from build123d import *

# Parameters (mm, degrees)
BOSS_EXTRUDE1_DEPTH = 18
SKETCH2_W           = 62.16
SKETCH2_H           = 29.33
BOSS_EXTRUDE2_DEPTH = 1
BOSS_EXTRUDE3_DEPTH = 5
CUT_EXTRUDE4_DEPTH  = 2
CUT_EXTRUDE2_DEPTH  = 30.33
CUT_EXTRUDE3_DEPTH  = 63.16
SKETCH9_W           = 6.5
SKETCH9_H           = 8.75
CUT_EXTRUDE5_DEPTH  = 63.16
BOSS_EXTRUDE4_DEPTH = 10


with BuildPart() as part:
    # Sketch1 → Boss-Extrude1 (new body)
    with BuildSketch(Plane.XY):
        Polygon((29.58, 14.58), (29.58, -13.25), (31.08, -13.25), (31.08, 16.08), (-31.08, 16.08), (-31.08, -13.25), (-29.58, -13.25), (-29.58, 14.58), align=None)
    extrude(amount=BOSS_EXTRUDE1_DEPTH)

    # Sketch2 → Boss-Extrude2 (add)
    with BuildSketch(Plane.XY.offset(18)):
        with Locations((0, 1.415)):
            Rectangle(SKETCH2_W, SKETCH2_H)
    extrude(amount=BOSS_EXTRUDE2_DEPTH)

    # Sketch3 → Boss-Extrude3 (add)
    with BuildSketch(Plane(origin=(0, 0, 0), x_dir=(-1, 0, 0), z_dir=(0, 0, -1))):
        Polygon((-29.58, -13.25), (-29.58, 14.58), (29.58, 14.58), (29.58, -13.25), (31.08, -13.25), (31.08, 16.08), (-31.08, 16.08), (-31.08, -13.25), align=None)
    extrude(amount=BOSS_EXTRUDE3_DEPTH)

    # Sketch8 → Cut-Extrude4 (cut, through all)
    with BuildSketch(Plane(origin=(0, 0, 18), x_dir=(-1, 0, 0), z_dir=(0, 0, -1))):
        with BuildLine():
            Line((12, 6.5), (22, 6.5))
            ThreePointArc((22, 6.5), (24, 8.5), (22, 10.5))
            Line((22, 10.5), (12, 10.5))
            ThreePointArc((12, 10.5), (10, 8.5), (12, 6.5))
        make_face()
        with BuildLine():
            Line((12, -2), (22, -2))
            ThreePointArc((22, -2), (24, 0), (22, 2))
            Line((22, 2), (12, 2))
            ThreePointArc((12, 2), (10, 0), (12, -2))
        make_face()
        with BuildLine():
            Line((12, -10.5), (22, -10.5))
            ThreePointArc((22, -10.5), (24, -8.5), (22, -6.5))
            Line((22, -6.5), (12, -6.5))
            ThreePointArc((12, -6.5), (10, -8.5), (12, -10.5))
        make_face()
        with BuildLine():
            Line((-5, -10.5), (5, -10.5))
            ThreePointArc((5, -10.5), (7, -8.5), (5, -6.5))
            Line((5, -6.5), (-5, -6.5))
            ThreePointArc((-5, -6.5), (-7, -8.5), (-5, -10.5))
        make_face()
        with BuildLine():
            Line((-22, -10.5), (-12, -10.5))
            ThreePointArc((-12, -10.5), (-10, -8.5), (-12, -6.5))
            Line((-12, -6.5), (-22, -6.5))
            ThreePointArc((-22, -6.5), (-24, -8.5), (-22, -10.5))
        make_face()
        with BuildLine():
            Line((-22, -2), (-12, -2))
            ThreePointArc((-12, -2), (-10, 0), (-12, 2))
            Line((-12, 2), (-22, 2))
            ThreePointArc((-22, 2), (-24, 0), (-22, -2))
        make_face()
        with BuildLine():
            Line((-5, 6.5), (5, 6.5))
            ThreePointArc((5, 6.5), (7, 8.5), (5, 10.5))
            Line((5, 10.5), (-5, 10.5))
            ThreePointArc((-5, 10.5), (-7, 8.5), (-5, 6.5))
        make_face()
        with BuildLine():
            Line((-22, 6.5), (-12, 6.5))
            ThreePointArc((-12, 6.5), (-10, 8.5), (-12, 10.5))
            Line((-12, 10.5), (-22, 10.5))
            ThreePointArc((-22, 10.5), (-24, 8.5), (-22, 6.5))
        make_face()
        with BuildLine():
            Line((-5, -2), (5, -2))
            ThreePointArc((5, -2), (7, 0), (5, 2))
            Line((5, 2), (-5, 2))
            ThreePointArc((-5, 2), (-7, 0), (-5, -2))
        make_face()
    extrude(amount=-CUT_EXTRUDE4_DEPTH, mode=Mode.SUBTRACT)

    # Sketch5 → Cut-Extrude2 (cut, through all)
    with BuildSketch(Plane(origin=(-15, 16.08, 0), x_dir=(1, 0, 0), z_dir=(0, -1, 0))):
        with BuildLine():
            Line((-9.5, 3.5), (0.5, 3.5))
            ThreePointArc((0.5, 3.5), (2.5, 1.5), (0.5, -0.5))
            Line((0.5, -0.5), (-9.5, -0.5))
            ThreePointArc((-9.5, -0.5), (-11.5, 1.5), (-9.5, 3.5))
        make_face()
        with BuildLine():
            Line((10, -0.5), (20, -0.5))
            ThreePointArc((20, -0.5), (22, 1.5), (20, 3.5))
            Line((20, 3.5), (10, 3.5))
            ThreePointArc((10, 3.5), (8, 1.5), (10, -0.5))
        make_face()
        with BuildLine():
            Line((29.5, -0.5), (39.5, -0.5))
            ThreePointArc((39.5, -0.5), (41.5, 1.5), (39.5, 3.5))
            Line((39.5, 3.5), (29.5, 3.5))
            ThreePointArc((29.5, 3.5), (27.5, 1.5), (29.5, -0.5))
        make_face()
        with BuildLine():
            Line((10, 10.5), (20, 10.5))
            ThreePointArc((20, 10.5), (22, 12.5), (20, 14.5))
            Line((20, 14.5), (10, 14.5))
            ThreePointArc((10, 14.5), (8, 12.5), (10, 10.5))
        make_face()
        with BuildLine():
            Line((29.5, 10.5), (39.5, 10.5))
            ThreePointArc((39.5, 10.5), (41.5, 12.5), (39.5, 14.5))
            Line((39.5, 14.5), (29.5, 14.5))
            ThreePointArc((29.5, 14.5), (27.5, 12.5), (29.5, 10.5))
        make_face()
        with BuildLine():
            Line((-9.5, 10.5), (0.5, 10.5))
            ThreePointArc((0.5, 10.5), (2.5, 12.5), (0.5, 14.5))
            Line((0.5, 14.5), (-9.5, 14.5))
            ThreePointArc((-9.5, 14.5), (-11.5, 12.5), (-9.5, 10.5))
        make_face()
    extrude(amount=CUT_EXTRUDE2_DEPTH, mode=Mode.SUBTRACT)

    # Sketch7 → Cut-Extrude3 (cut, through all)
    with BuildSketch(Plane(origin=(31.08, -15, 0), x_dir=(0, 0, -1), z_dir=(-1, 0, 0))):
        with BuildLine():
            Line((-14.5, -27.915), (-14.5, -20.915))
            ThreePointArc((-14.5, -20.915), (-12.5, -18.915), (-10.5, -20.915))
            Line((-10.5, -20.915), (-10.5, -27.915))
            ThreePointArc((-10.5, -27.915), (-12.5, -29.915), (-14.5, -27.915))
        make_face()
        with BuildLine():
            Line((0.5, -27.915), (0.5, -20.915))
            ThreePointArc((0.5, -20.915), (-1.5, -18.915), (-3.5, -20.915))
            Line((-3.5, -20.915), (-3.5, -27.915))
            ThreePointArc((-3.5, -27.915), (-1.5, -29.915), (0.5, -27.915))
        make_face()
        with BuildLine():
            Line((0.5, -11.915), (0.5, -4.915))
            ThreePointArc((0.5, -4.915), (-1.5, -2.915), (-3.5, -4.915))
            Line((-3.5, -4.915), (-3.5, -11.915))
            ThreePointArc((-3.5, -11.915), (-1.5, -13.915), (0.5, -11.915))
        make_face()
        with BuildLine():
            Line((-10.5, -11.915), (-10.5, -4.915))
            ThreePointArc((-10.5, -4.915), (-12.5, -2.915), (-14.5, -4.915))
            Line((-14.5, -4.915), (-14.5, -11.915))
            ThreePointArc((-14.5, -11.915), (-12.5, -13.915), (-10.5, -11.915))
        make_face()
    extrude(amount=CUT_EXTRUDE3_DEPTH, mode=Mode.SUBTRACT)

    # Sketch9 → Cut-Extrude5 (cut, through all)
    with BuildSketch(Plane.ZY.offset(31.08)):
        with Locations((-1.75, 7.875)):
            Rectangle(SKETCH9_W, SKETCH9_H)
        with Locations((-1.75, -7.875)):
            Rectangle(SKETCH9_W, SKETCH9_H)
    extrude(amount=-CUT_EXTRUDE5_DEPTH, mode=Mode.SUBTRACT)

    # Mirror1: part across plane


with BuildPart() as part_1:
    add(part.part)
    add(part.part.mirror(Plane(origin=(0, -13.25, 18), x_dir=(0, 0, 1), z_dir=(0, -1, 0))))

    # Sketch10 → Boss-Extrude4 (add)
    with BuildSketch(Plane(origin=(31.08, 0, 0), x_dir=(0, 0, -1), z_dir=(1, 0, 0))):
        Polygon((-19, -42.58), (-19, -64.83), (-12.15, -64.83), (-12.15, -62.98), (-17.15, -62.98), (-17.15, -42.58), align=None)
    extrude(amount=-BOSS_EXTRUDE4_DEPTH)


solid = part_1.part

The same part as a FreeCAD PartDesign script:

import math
import FreeCAD as App
import Part
import Sketcher
from FreeCAD import Vector

doc = App.newDocument("Part")
body = doc.addObject("PartDesign::Body", "Body")

# Sketch on XY plane
sketch1 = body.newObject("Sketcher::SketchObject", "Sketch")
sketch1.AttachmentSupport = (doc.getObject("XY_Plane"), [""])
sketch1.MapMode = "FlatFace"
sketch1.addGeometry([
    Part.LineSegment(Vector(29.58, 14.58, 0), Vector(29.58, -13.25, 0)),  # 0
    Part.LineSegment(Vector(29.58, -13.25, 0), Vector(31.08, -13.25, 0)),  # 1
    Part.LineSegment(Vector(31.08, -13.25, 0), Vector(31.08, 16.08, 0)),  # 2
    Part.LineSegment(Vector(31.08, 16.08, 0), Vector(-31.08, 16.08, 0)),  # 3
    Part.LineSegment(Vector(-31.08, 16.08, 0), Vector(-31.08, -13.25, 0)),  # 4
    Part.LineSegment(Vector(-31.08, -13.25, 0), Vector(-29.58, -13.25, 0)),  # 5
    Part.LineSegment(Vector(-29.58, -13.25, 0), Vector(-29.58, 14.58, 0)),  # 6
    Part.LineSegment(Vector(-29.58, 14.58, 0), Vector(29.58, 14.58, 0)),  # 7
], False)
sketch1.addConstraint([
    Sketcher.Constraint("Coincident", 0, 2, 1, 1),
    Sketcher.Constraint("Coincident", 1, 2, 2, 1),
    Sketcher.Constraint("Coincident", 2, 2, 3, 1),
    Sketcher.Constraint("Coincident", 3, 2, 4, 1),
    Sketcher.Constraint("Coincident", 4, 2, 5, 1),
    Sketcher.Constraint("Coincident", 5, 2, 6, 1),
    Sketcher.Constraint("Coincident", 6, 2, 7, 1),
    Sketcher.Constraint("Coincident", 7, 2, 0, 1),
    Sketcher.Constraint("Vertical", 0),
    Sketcher.Constraint("Horizontal", 1),
    Sketcher.Constraint("Vertical", 2),
    Sketcher.Constraint("Horizontal", 3),
    Sketcher.Constraint("Vertical", 4),
    Sketcher.Constraint("Horizontal", 5),
    Sketcher.Constraint("Vertical", 6),
    Sketcher.Constraint("Horizontal", 7),
    Sketcher.Constraint("Symmetric", 1, 2, 4, 2, -2),
    Sketcher.Constraint("Equal", 1, 5),
    Sketcher.Constraint("DistanceX", 1, 1, 1, 2, 1.5),
    Sketcher.Constraint("DistanceX", 3, 2, 3, 1, 62.16),
    Sketcher.Constraint("DistanceY", 0, 2, 0, 1, 27.83),
    Sketcher.Constraint("DistanceY", 2, 1, 2, 2, 29.33),
    Sketcher.Constraint("DistanceY", 0, 2, -1, 1, 13.25),
])
pad1 = body.newObject("PartDesign::Pad", "Pad")
pad1.Profile = sketch1
pad1.Length = 18

# Sketch on XY plane
sketch2 = body.newObject("Sketcher::SketchObject", "Sketch001")
sketch2.AttachmentSupport = (doc.getObject("XY_Plane"), [""])
sketch2.MapMode = "FlatFace"
sketch2.AttachmentOffset = App.Placement(Vector(0, 0, 18), App.Rotation())
sketch2.addGeometry([
    Part.LineSegment(Vector(-31.08, 16.08, 0), Vector(-31.08, -13.25, 0)),
    Part.LineSegment(Vector(-31.08, -13.25, 0), Vector(31.08, -13.25, 0)),
    Part.LineSegment(Vector(31.08, -13.25, 0), Vector(31.08, 16.08, 0)),
    Part.LineSegment(Vector(31.08, 16.08, 0), Vector(-31.08, 16.08, 0)),
], False)
sketch2.addConstraint([
    Sketcher.Constraint("Coincident", 0, 2, 1, 1),
    Sketcher.Constraint("Coincident", 1, 2, 2, 1),
    Sketcher.Constraint("Coincident", 2, 2, 3, 1),
    Sketcher.Constraint("Coincident", 3, 2, 0, 1),
    Sketcher.Constraint("Vertical", 0),
    Sketcher.Constraint("Horizontal", 1),
    Sketcher.Constraint("Vertical", 2),
    Sketcher.Constraint("Horizontal", 3),
    Sketcher.Constraint("DistanceX", 1, 1, 1, 2, 62.16),
    Sketcher.Constraint("DistanceY", 0, 2, 0, 1, 29.33),
    Sketcher.Constraint("DistanceX", 0, 2, -1, 1, 31.08),
    Sketcher.Constraint("DistanceY", 0, 2, -1, 1, 13.25),
])
pad2 = body.newObject("PartDesign::Pad", "Pad001")
pad2.Profile = sketch2
pad2.Length = 1

# Sketch on XY plane
sketch3 = body.newObject("Sketcher::SketchObject", "Sketch002")
sketch3.AttachmentSupport = (doc.getObject("XY_Plane"), [""])
sketch3.MapMode = "FlatFace"
sketch3.addGeometry([
    Part.LineSegment(Vector(29.58, -13.25, 0), Vector(29.58, 14.58, 0)),  # 0
    Part.LineSegment(Vector(29.58, 14.58, 0), Vector(-29.58, 14.58, 0)),  # 1
    Part.LineSegment(Vector(-29.58, 14.58, 0), Vector(-29.58, -13.25, 0)),  # 2
    Part.LineSegment(Vector(-29.58, -13.25, 0), Vector(-31.08, -13.25, 0)),  # 3
    Part.LineSegment(Vector(-31.08, -13.25, 0), Vector(-31.08, 16.08, 0)),  # 4
    Part.LineSegment(Vector(-31.08, 16.08, 0), Vector(31.08, 16.08, 0)),  # 5
    Part.LineSegment(Vector(31.08, 16.08, 0), Vector(31.08, -13.25, 0)),  # 6
    Part.LineSegment(Vector(31.08, -13.25, 0), Vector(29.58, -13.25, 0)),  # 7
], False)
sketch3.addConstraint([
    Sketcher.Constraint("Coincident", 0, 2, 1, 1),
    Sketcher.Constraint("Coincident", 1, 2, 2, 1),
    Sketcher.Constraint("Coincident", 2, 2, 3, 1),
    Sketcher.Constraint("Coincident", 3, 2, 4, 1),
    Sketcher.Constraint("Coincident", 4, 2, 5, 1),
    Sketcher.Constraint("Coincident", 5, 2, 6, 1),
    Sketcher.Constraint("Coincident", 6, 2, 7, 1),
    Sketcher.Constraint("Coincident", 7, 2, 0, 1),
    Sketcher.Constraint("Vertical", 0),
    Sketcher.Constraint("Horizontal", 1),
    Sketcher.Constraint("Vertical", 2),
    Sketcher.Constraint("Horizontal", 3),
    Sketcher.Constraint("Vertical", 4),
    Sketcher.Constraint("Horizontal", 5),
    Sketcher.Constraint("Vertical", 6),
    Sketcher.Constraint("Horizontal", 7),
    Sketcher.Constraint("Symmetric", 3, 2, 6, 2, -2),
    Sketcher.Constraint("Equal", 3, 7),
    Sketcher.Constraint("DistanceX", 3, 2, 3, 1, 1.5),
    Sketcher.Constraint("DistanceX", 1, 2, 1, 1, 59.16),
    Sketcher.Constraint("DistanceY", 0, 1, 0, 2, 27.83),
    Sketcher.Constraint("DistanceY", 4, 1, 4, 2, 29.33),
    Sketcher.Constraint("DistanceY", -1, 1, 0, 2, 14.58),
])
pad3 = body.newObject("PartDesign::Pad", "Pad002")
pad3.Profile = sketch3
pad3.Length = 5
pad3.Reversed = True

# Sketch on XY plane
sketch4 = body.newObject("Sketcher::SketchObject", "Sketch003")
sketch4.AttachmentSupport = (doc.getObject("XY_Plane"), [""])
sketch4.MapMode = "FlatFace"
sketch4.AttachmentOffset = App.Placement(Vector(0, 0, 18), App.Rotation())
sketch4.addGeometry([
    Part.LineSegment(Vector(-12, 6.5, 0), Vector(-22, 6.5, 0)),  # 0
    Part.ArcOfCircle(Part.Circle(Vector(-22, 8.5, 0), Vector(0, 0, 1), 2), math.radians(90), math.radians(270)),  # 1
    Part.LineSegment(Vector(-22, 10.5, 0), Vector(-12, 10.5, 0)),  # 2
    Part.ArcOfCircle(Part.Circle(Vector(-12, 8.5, 0), Vector(0, 0, 1), 2), math.radians(-90), math.radians(90)),  # 3
    Part.LineSegment(Vector(-12, -2, 0), Vector(-22, -2, 0)),  # 4
    Part.ArcOfCircle(Part.Circle(Vector(-22, 0, 0), Vector(0, 0, 1), 2), math.radians(90), math.radians(270)),  # 5
    Part.LineSegment(Vector(-22, 2, 0), Vector(-12, 2, 0)),  # 6
    Part.ArcOfCircle(Part.Circle(Vector(-12, 0, 0), Vector(0, 0, 1), 2), math.radians(-90), math.radians(90)),  # 7
    Part.LineSegment(Vector(-12, -10.5, 0), Vector(-22, -10.5, 0)),  # 8
    Part.ArcOfCircle(Part.Circle(Vector(-22, -8.5, 0), Vector(0, 0, 1), 2), math.radians(90), math.radians(270)),  # 9
    Part.LineSegment(Vector(-22, -6.5, 0), Vector(-12, -6.5, 0)),  # 10
    Part.ArcOfCircle(Part.Circle(Vector(-12, -8.5, 0), Vector(0, 0, 1), 2), math.radians(-90), math.radians(90)),  # 11
    Part.LineSegment(Vector(5, -10.5, 0), Vector(-5, -10.5, 0)),  # 12
    Part.ArcOfCircle(Part.Circle(Vector(-5, -8.5, 0), Vector(0, 0, 1), 2), math.radians(90), math.radians(270)),  # 13
    Part.LineSegment(Vector(-5, -6.5, 0), Vector(5, -6.5, 0)),  # 14
    Part.ArcOfCircle(Part.Circle(Vector(5, -8.5, 0), Vector(0, 0, 1), 2), math.radians(-90), math.radians(90)),  # 15
    Part.LineSegment(Vector(22, -10.5, 0), Vector(12, -10.5, 0)),  # 16
    Part.ArcOfCircle(Part.Circle(Vector(12, -8.5, 0), Vector(0, 0, 1), 2), math.radians(90), math.radians(270)),  # 17
    Part.LineSegment(Vector(12, -6.5, 0), Vector(22, -6.5, 0)),  # 18
    Part.ArcOfCircle(Part.Circle(Vector(22, -8.5, 0), Vector(0, 0, 1), 2), math.radians(-90), math.radians(90)),  # 19
    Part.LineSegment(Vector(22, -2, 0), Vector(12, -2, 0)),  # 20
    Part.ArcOfCircle(Part.Circle(Vector(12, 0, 0), Vector(0, 0, 1), 2), math.radians(90), math.radians(270)),  # 21
    Part.LineSegment(Vector(12, 2, 0), Vector(22, 2, 0)),  # 22
    Part.ArcOfCircle(Part.Circle(Vector(22, 0, 0), Vector(0, 0, 1), 2), math.radians(-90), math.radians(90)),  # 23
    Part.LineSegment(Vector(5, 6.5, 0), Vector(-5, 6.5, 0)),  # 24
    Part.ArcOfCircle(Part.Circle(Vector(-5, 8.5, 0), Vector(0, 0, 1), 2), math.radians(90), math.radians(270)),  # 25
    Part.LineSegment(Vector(-5, 10.5, 0), Vector(5, 10.5, 0)),  # 26
    Part.ArcOfCircle(Part.Circle(Vector(5, 8.5, 0), Vector(0, 0, 1), 2), math.radians(-90), math.radians(90)),  # 27
    Part.LineSegment(Vector(22, 6.5, 0), Vector(12, 6.5, 0)),  # 28
    Part.ArcOfCircle(Part.Circle(Vector(12, 8.5, 0), Vector(0, 0, 1), 2), math.radians(90), math.radians(270)),  # 29
    Part.LineSegment(Vector(12, 10.5, 0), Vector(22, 10.5, 0)),  # 30
    Part.ArcOfCircle(Part.Circle(Vector(22, 8.5, 0), Vector(0, 0, 1), 2), math.radians(-90), math.radians(90)),  # 31
    Part.LineSegment(Vector(5, -2, 0), Vector(-5, -2, 0)),  # 32
    Part.ArcOfCircle(Part.Circle(Vector(-5, 0, 0), Vector(0, 0, 1), 2), math.radians(90), math.radians(270)),  # 33
    Part.LineSegment(Vector(-5, 2, 0), Vector(5, 2, 0)),  # 34
    Part.ArcOfCircle(Part.Circle(Vector(5, 0, 0), Vector(0, 0, 1), 2), math.radians(-90), math.radians(90)),  # 35
], False)
sketch4.addConstraint([
    Sketcher.Constraint("Tangent", 0, 2, 1, 2),
    Sketcher.Constraint("Tangent", 1, 1, 2, 1),
    Sketcher.Constraint("Tangent", 2, 2, 3, 2),
    Sketcher.Constraint("Tangent", 3, 1, 0, 1),
    Sketcher.Constraint("Tangent", 4, 2, 5, 2),
    Sketcher.Constraint("Tangent", 5, 1, 6, 1),
    Sketcher.Constraint("Tangent", 6, 2, 7, 2),
    Sketcher.Constraint("Tangent", 7, 1, 4, 1),
    Sketcher.Constraint("Tangent", 8, 2, 9, 2),
    Sketcher.Constraint("Tangent", 9, 1, 10, 1),
    Sketcher.Constraint("Tangent", 10, 2, 11, 2),
    Sketcher.Constraint("Tangent", 11, 1, 8, 1),
    Sketcher.Constraint("Tangent", 12, 2, 13, 2),
    Sketcher.Constraint("Tangent", 13, 1, 14, 1),
    Sketcher.Constraint("Tangent", 14, 2, 15, 2),
    Sketcher.Constraint("Tangent", 15, 1, 12, 1),
    Sketcher.Constraint("Tangent", 16, 2, 17, 2),
    Sketcher.Constraint("Tangent", 17, 1, 18, 1),
    Sketcher.Constraint("Tangent", 18, 2, 19, 2),
    Sketcher.Constraint("Tangent", 19, 1, 16, 1),
    Sketcher.Constraint("Tangent", 20, 2, 21, 2),
    Sketcher.Constraint("Tangent", 21, 1, 22, 1),
    Sketcher.Constraint("Tangent", 22, 2, 23, 2),
    Sketcher.Constraint("Tangent", 23, 1, 20, 1),
    Sketcher.Constraint("Tangent", 24, 2, 25, 2),
    Sketcher.Constraint("Tangent", 25, 1, 26, 1),
    Sketcher.Constraint("Tangent", 26, 2, 27, 2),
    Sketcher.Constraint("Tangent", 27, 1, 24, 1),
    Sketcher.Constraint("Tangent", 28, 2, 29, 2),
    Sketcher.Constraint("Tangent", 29, 1, 30, 1),
    Sketcher.Constraint("Tangent", 30, 2, 31, 2),
    Sketcher.Constraint("Tangent", 31, 1, 28, 1),
    Sketcher.Constraint("Tangent", 32, 2, 33, 2),
    Sketcher.Constraint("Tangent", 33, 1, 34, 1),
    Sketcher.Constraint("Tangent", 34, 2, 35, 2),
    Sketcher.Constraint("Tangent", 35, 1, 32, 1),
    Sketcher.Constraint("Horizontal", 0),
    Sketcher.Constraint("Horizontal", 2),
    Sketcher.Constraint("Horizontal", 4),
    Sketcher.Constraint("Horizontal", 6),
    Sketcher.Constraint("Horizontal", 8),
    Sketcher.Constraint("Horizontal", 10),
    Sketcher.Constraint("Horizontal", 12),
    Sketcher.Constraint("Horizontal", 14),
    Sketcher.Constraint("Horizontal", 16),
    Sketcher.Constraint("Horizontal", 18),
    Sketcher.Constraint("Horizontal", 20),
    Sketcher.Constraint("Horizontal", 22),
    Sketcher.Constraint("Horizontal", 24),
    Sketcher.Constraint("Horizontal", 26),
    Sketcher.Constraint("Horizontal", 28),
    Sketcher.Constraint("Horizontal", 30),
    Sketcher.Constraint("Horizontal", 32),
    Sketcher.Constraint("Horizontal", 34),
    Sketcher.Constraint("Equal", 3, 5),
    Sketcher.Constraint("Equal", 7, 9),
    Sketcher.Constraint("Equal", 11, 13),
    Sketcher.Constraint("Equal", 15, 17),
    Sketcher.Constraint("Equal", 19, 21),
    Sketcher.Constraint("Equal", 23, 25),
    Sketcher.Constraint("Equal", 27, 29),
    Sketcher.Constraint("Equal", 31, 33),
    Sketcher.Constraint("Symmetric", 3, 3, 17, 3, -1, 1),
    Sketcher.Constraint("Symmetric", 7, 3, 21, 3, -1, 1),
    Sketcher.Constraint("Symmetric", 15, 3, 25, 3, -1, 1),
    Sketcher.Constraint("Symmetric", 11, 3, 29, 3, -1, 1),
    Sketcher.Constraint("Symmetric", 33, 3, 35, 3, -1, 1),
    Sketcher.Constraint("Symmetric", 11, 3, 17, 3, -2),
    Sketcher.Constraint("Symmetric", 5, 3, 23, 3, -2),
    Sketcher.Constraint("Horizontal", 11, 3, 13, 3),
    Sketcher.Constraint("Vertical", 1, 3, 5, 3),
    Sketcher.Constraint("Vertical", 3, 3, 7, 3),
    Sketcher.Constraint("Vertical", 5, 3, 9, 3),
    Sketcher.Constraint("Vertical", 19, 3, 23, 3),
    Sketcher.Constraint("Vertical", 13, 3, 25, 3),
    Sketcher.Constraint("Vertical", 15, 3, 27, 3),
    Sketcher.Constraint("Vertical", 23, 3, 31, 3),
    Sketcher.Constraint("Vertical", 25, 3, 33, 3),
    Sketcher.Constraint("Equal", 10, 12),
    Sketcher.Constraint("Radius", 1, 2.0),
    Sketcher.Constraint("DistanceX", 0, 2, 0, 1, 10.0),
    Sketcher.Constraint("DistanceX", 1, 3, -1, 1, 22.0),
    Sketcher.Constraint("DistanceY", 9, 3, 1, 3, 17.0),
])
pocket1 = body.newObject("PartDesign::Pocket", "Pocket")
pocket1.Profile = sketch4
pocket1.Type = "ThroughAll"
pocket1.Reversed = True

# Sketch on XZ plane
sketch5 = body.newObject("Sketcher::SketchObject", "Sketch004")
sketch5.AttachmentSupport = (doc.getObject("XZ_Plane"), [""])
sketch5.MapMode = "FlatFace"
sketch5.AttachmentOffset = App.Placement(Vector(0, 0, -16.08), App.Rotation())
sketch5.addGeometry([
    Part.LineSegment(Vector(-14.5, 3.5, 0), Vector(-24.5, 3.5, 0)),  # 0
    Part.ArcOfCircle(Part.Circle(Vector(-24.5, 1.5, 0), Vector(0, 0, 1), 2), math.radians(90), math.radians(270)),  # 1
    Part.LineSegment(Vector(-24.5, -0.5, 0), Vector(-14.5, -0.5, 0)),  # 2
    Part.ArcOfCircle(Part.Circle(Vector(-14.5, 1.5, 0), Vector(0, 0, 1), 2), math.radians(-90), math.radians(90)),  # 3
    Part.LineSegment(Vector(-5, -0.5, 0), Vector(5, -0.5, 0)),  # 4
    Part.ArcOfCircle(Part.Circle(Vector(5, 1.5, 0), Vector(0, 0, 1), 2), math.radians(-90), math.radians(90)),  # 5
    Part.LineSegment(Vector(5, 3.5, 0), Vector(-5, 3.5, 0)),  # 6
    Part.ArcOfCircle(Part.Circle(Vector(-5, 1.5, 0), Vector(0, 0, 1), 2), math.radians(90), math.radians(270)),  # 7
    Part.LineSegment(Vector(14.5, -0.5, 0), Vector(24.5, -0.5, 0)),  # 8
    Part.ArcOfCircle(Part.Circle(Vector(24.5, 1.5, 0), Vector(0, 0, 1), 2), math.radians(-90), math.radians(90)),  # 9
    Part.LineSegment(Vector(24.5, 3.5, 0), Vector(14.5, 3.5, 0)),  # 10
    Part.ArcOfCircle(Part.Circle(Vector(14.5, 1.5, 0), Vector(0, 0, 1), 2), math.radians(90), math.radians(270)),  # 11
    Part.LineSegment(Vector(-5, 10.5, 0), Vector(5, 10.5, 0)),  # 12
    Part.ArcOfCircle(Part.Circle(Vector(5, 12.5, 0), Vector(0, 0, 1), 2), math.radians(-90), math.radians(90)),  # 13
    Part.LineSegment(Vector(5, 14.5, 0), Vector(-5, 14.5, 0)),  # 14
    Part.ArcOfCircle(Part.Circle(Vector(-5, 12.5, 0), Vector(0, 0, 1), 2), math.radians(90), math.radians(270)),  # 15
    Part.LineSegment(Vector(14.5, 10.5, 0), Vector(24.5, 10.5, 0)),  # 16
    Part.ArcOfCircle(Part.Circle(Vector(24.5, 12.5, 0), Vector(0, 0, 1), 2), math.radians(-90), math.radians(90)),  # 17
    Part.LineSegment(Vector(24.5, 14.5, 0), Vector(14.5, 14.5, 0)),  # 18
    Part.ArcOfCircle(Part.Circle(Vector(14.5, 12.5, 0), Vector(0, 0, 1), 2), math.radians(90), math.radians(270)),  # 19
    Part.LineSegment(Vector(-24.5, 10.5, 0), Vector(-14.5, 10.5, 0)),  # 20
    Part.ArcOfCircle(Part.Circle(Vector(-14.5, 12.5, 0), Vector(0, 0, 1), 2), math.radians(-90), math.radians(90)),  # 21
    Part.LineSegment(Vector(-14.5, 14.5, 0), Vector(-24.5, 14.5, 0)),  # 22
    Part.ArcOfCircle(Part.Circle(Vector(-24.5, 12.5, 0), Vector(0, 0, 1), 2), math.radians(90), math.radians(270)),  # 23
], False)
sketch5.addConstraint([
    Sketcher.Constraint("Tangent", 0, 2, 1, 1),
    Sketcher.Constraint("Tangent", 1, 2, 2, 1),
    Sketcher.Constraint("Tangent", 2, 2, 3, 1),
    Sketcher.Constraint("Tangent", 3, 2, 0, 1),
    Sketcher.Constraint("Tangent", 4, 2, 5, 1),
    Sketcher.Constraint("Tangent", 5, 2, 6, 1),
    Sketcher.Constraint("Tangent", 6, 2, 7, 1),
    Sketcher.Constraint("Tangent", 7, 2, 4, 1),
    Sketcher.Constraint("Tangent", 8, 2, 9, 1),
    Sketcher.Constraint("Tangent", 9, 2, 10, 1),
    Sketcher.Constraint("Tangent", 10, 2, 11, 1),
    Sketcher.Constraint("Tangent", 11, 2, 8, 1),
    Sketcher.Constraint("Tangent", 12, 2, 13, 1),
    Sketcher.Constraint("Tangent", 13, 2, 14, 1),
    Sketcher.Constraint("Tangent", 14, 2, 15, 1),
    Sketcher.Constraint("Tangent", 15, 2, 12, 1),
    Sketcher.Constraint("Tangent", 16, 2, 17, 1),
    Sketcher.Constraint("Tangent", 17, 2, 18, 1),
    Sketcher.Constraint("Tangent", 18, 2, 19, 1),
    Sketcher.Constraint("Tangent", 19, 2, 16, 1),
    Sketcher.Constraint("Tangent", 20, 2, 21, 1),
    Sketcher.Constraint("Tangent", 21, 2, 22, 1),
    Sketcher.Constraint("Tangent", 22, 2, 23, 1),
    Sketcher.Constraint("Tangent", 23, 2, 20, 1),
    Sketcher.Constraint("Horizontal", 0),
    Sketcher.Constraint("Horizontal", 2),
    Sketcher.Constraint("Horizontal", 4),
    Sketcher.Constraint("Horizontal", 6),
    Sketcher.Constraint("Horizontal", 8),
    Sketcher.Constraint("Horizontal", 10),
    Sketcher.Constraint("Horizontal", 12),
    Sketcher.Constraint("Horizontal", 14),
    Sketcher.Constraint("Horizontal", 16),
    Sketcher.Constraint("Horizontal", 18),
    Sketcher.Constraint("Horizontal", 20),
    Sketcher.Constraint("Horizontal", 22),
    Sketcher.Constraint("Equal", 3, 5),
    Sketcher.Constraint("Equal", 7, 9),
    Sketcher.Constraint("Equal", 11, 13),
    Sketcher.Constraint("Equal", 15, 17),
    Sketcher.Constraint("Equal", 19, 21),
    Sketcher.Constraint("Symmetric", 1, 3, 9, 3, -2),
    Sketcher.Constraint("Symmetric", 19, 3, 21, 3, -2),
    Sketcher.Constraint("Horizontal", 3, 3, 5, 3),
    Sketcher.Constraint("Horizontal", 15, 3, 17, 3),
    Sketcher.Constraint("Vertical", 5, 3, 13, 3),
    Sketcher.Constraint("Vertical", 7, 3, 15, 3),
    Sketcher.Constraint("Vertical", 9, 3, 17, 3),
    Sketcher.Constraint("Vertical", 11, 3, 19, 3),
    Sketcher.Constraint("Vertical", 3, 3, 21, 3),
    Sketcher.Constraint("Vertical", 1, 3, 23, 3),
    Sketcher.Constraint("Equal", 2, 4),
    Sketcher.Constraint("Radius", 1, 2.0),
    Sketcher.Constraint("DistanceX", 0, 2, 0, 1, 10.0),
    Sketcher.Constraint("DistanceX", -1, 1, 5, 3, 5.0),
    Sketcher.Constraint("DistanceX", 3, 3, 9, 3, 39.0),
    Sketcher.Constraint("DistanceY", 5, 3, 13, 3, 11.0),
    Sketcher.Constraint("DistanceY", -1, 1, 1, 3, 1.5),
])
pocket2 = body.newObject("PartDesign::Pocket", "Pocket001")
pocket2.Profile = sketch5
pocket2.Type = "ThroughAll"
pocket2.Reversed = True

# Sketch on YZ plane
sketch6 = body.newObject("Sketcher::SketchObject", "Sketch005")
sketch6.AttachmentSupport = (doc.getObject("YZ_Plane"), [""])
sketch6.MapMode = "FlatFace"
sketch6.AttachmentOffset = App.Placement(Vector(0, 0, 31.08), App.Rotation())
sketch6.addGeometry([
    Part.LineSegment(Vector(5.915, 14.5, 0), Vector(12.915, 14.5, 0)),  # 0
    Part.ArcOfCircle(Part.Circle(Vector(12.915, 12.5, 0), Vector(0, 0, 1), 2), math.radians(-90), math.radians(90)),  # 1
    Part.LineSegment(Vector(12.915, 10.5, 0), Vector(5.915, 10.5, 0)),  # 2
    Part.ArcOfCircle(Part.Circle(Vector(5.915, 12.5, 0), Vector(0, 0, 1), 2), math.radians(90), math.radians(270)),  # 3
    Part.LineSegment(Vector(12.915, -0.5, 0), Vector(5.915, -0.5, 0)),  # 4
    Part.ArcOfCircle(Part.Circle(Vector(5.915, 1.5, 0), Vector(0, 0, 1), 2), math.radians(90), math.radians(270)),  # 5
    Part.LineSegment(Vector(5.915, 3.5, 0), Vector(12.915, 3.5, 0)),  # 6
    Part.ArcOfCircle(Part.Circle(Vector(12.915, 1.5, 0), Vector(0, 0, 1), 2), math.radians(-90), math.radians(90)),  # 7
    Part.LineSegment(Vector(-3.085, -0.5, 0), Vector(-10.085, -0.5, 0)),  # 8
    Part.ArcOfCircle(Part.Circle(Vector(-10.085, 1.5, 0), Vector(0, 0, 1), 2), math.radians(90), math.radians(270)),  # 9
    Part.LineSegment(Vector(-10.085, 3.5, 0), Vector(-3.085, 3.5, 0)),  # 10
    Part.ArcOfCircle(Part.Circle(Vector(-3.085, 1.5, 0), Vector(0, 0, 1), 2), math.radians(-90), math.radians(90)),  # 11
    Part.LineSegment(Vector(-3.085, 10.5, 0), Vector(-10.085, 10.5, 0)),  # 12
    Part.ArcOfCircle(Part.Circle(Vector(-10.085, 12.5, 0), Vector(0, 0, 1), 2), math.radians(90), math.radians(270)),  # 13
    Part.LineSegment(Vector(-10.085, 14.5, 0), Vector(-3.085, 14.5, 0)),  # 14
    Part.ArcOfCircle(Part.Circle(Vector(-3.085, 12.5, 0), Vector(0, 0, 1), 2), math.radians(-90), math.radians(90)),  # 15
], False)
sketch6.addConstraint([
    Sketcher.Constraint("Tangent", 0, 2, 1, 2),
    Sketcher.Constraint("Tangent", 1, 1, 2, 1),
    Sketcher.Constraint("Tangent", 2, 2, 3, 2),
    Sketcher.Constraint("Tangent", 3, 1, 0, 1),
    Sketcher.Constraint("Tangent", 4, 2, 5, 2),
    Sketcher.Constraint("Tangent", 5, 1, 6, 1),
    Sketcher.Constraint("Tangent", 6, 2, 7, 2),
    Sketcher.Constraint("Tangent", 7, 1, 4, 1),
    Sketcher.Constraint("Tangent", 8, 2, 9, 2),
    Sketcher.Constraint("Tangent", 9, 1, 10, 1),
    Sketcher.Constraint("Tangent", 10, 2, 11, 2),
    Sketcher.Constraint("Tangent", 11, 1, 8, 1),
    Sketcher.Constraint("Tangent", 12, 2, 13, 2),
    Sketcher.Constraint("Tangent", 13, 1, 14, 1),
    Sketcher.Constraint("Tangent", 14, 2, 15, 2),
    Sketcher.Constraint("Tangent", 15, 1, 12, 1),
    Sketcher.Constraint("Horizontal", 0),
    Sketcher.Constraint("Horizontal", 2),
    Sketcher.Constraint("Horizontal", 4),
    Sketcher.Constraint("Horizontal", 6),
    Sketcher.Constraint("Horizontal", 8),
    Sketcher.Constraint("Horizontal", 10),
    Sketcher.Constraint("Horizontal", 12),
    Sketcher.Constraint("Horizontal", 14),
    Sketcher.Constraint("Equal", 3, 5),
    Sketcher.Constraint("Equal", 7, 9),
    Sketcher.Constraint("Equal", 11, 13),
    Sketcher.Constraint("Horizontal", 7, 3, 9, 3),
    Sketcher.Constraint("Horizontal", 3, 3, 13, 3),
    Sketcher.Constraint("Vertical", 3, 3, 5, 3),
    Sketcher.Constraint("Vertical", 1, 3, 7, 3),
    Sketcher.Constraint("Vertical", 9, 3, 13, 3),
    Sketcher.Constraint("Vertical", 11, 3, 15, 3),
    Sketcher.Constraint("Equal", 6, 8),
    Sketcher.Constraint("Radius", 1, 2.0),
    Sketcher.Constraint("DistanceX", 0, 1, 0, 2, 7.0),
    Sketcher.Constraint("DistanceY", 5, 3, 3, 3, 11.0),
    Sketcher.Constraint("DistanceX", 9, 3, 5, 3, 16.0),
    Sketcher.Constraint("DistanceY", -1, 1, 1, 3, 12.5),
    Sketcher.Constraint("DistanceX", -1, 1, 1, 3, 12.915),
])
pocket3 = body.newObject("PartDesign::Pocket", "Pocket002")
pocket3.Profile = sketch6
pocket3.Type = "ThroughAll"

# Sketch on YZ plane
sketch7 = body.newObject("Sketcher::SketchObject", "Sketch006")
sketch7.AttachmentSupport = (doc.getObject("YZ_Plane"), [""])
sketch7.MapMode = "FlatFace"
sketch7.AttachmentOffset = App.Placement(Vector(0, 0, -31.08), App.Rotation())
sketch7.addGeometry([
    Part.LineSegment(Vector(12.25, -5, 0), Vector(3.5, -5, 0)),  # 0
    Part.LineSegment(Vector(3.5, -5, 0), Vector(3.5, 1.5, 0)),  # 1
    Part.LineSegment(Vector(3.5, 1.5, 0), Vector(12.25, 1.5, 0)),  # 2
    Part.LineSegment(Vector(12.25, 1.5, 0), Vector(12.25, -5, 0)),  # 3
    Part.LineSegment(Vector(-3.5, -5, 0), Vector(-12.25, -5, 0)),  # 4
    Part.LineSegment(Vector(-12.25, -5, 0), Vector(-12.25, 1.5, 0)),  # 5
    Part.LineSegment(Vector(-12.25, 1.5, 0), Vector(-3.5, 1.5, 0)),  # 6
    Part.LineSegment(Vector(-3.5, 1.5, 0), Vector(-3.5, -5, 0)),  # 7
], False)
sketch7.addConstraint([
    Sketcher.Constraint("Coincident", 0, 2, 1, 1),
    Sketcher.Constraint("Coincident", 1, 2, 2, 1),
    Sketcher.Constraint("Coincident", 2, 2, 3, 1),
    Sketcher.Constraint("Coincident", 3, 2, 0, 1),
    Sketcher.Constraint("Coincident", 4, 2, 5, 1),
    Sketcher.Constraint("Coincident", 5, 2, 6, 1),
    Sketcher.Constraint("Coincident", 6, 2, 7, 1),
    Sketcher.Constraint("Coincident", 7, 2, 4, 1),
    Sketcher.Constraint("Horizontal", 0),
    Sketcher.Constraint("Vertical", 1),
    Sketcher.Constraint("Horizontal", 2),
    Sketcher.Constraint("Vertical", 3),
    Sketcher.Constraint("Horizontal", 4),
    Sketcher.Constraint("Vertical", 5),
    Sketcher.Constraint("Horizontal", 6),
    Sketcher.Constraint("Vertical", 7),
    Sketcher.Constraint("Symmetric", 3, 2, 4, 2, -2),
    Sketcher.Constraint("Symmetric", 1, 2, 6, 2, -2),
    Sketcher.Constraint("DistanceY", 1, 1, 1, 2, 6.5),
    Sketcher.Constraint("DistanceY", 0, 2, -1, 1, 5.0),
    Sketcher.Constraint("DistanceX", 6, 2, 1, 2, 7.0),
    Sketcher.Constraint("DistanceX", 0, 2, 0, 1, 8.75),
])
pocket4 = body.newObject("PartDesign::Pocket", "Pocket003")
pocket4.Profile = sketch7
pocket4.Type = "ThroughAll"
pocket4.Reversed = True
body2 = doc.addObject("PartDesign::Body", "Body001")
doc.recompute()

body2.BaseFeature = body
doc.recompute()

mirroring = doc.addObject("Part::Mirroring", "Mirroring")
mirroring.Source = body
mirroring.Base = Vector(0, -13.25, 18)
mirroring.Normal = Vector(0, -1, 0)
body3 = doc.addObject("PartDesign::Body", "Body002")
body3.BaseFeature = mirroring
boolean = body2.newObject("PartDesign::Boolean", "Boolean")
boolean.Type = "Fuse"
boolean.addObjects([body3])
doc.recompute()

# Sketch on YZ plane
sketch8 = body2.newObject("Sketcher::SketchObject", "Sketch007")
sketch8.AttachmentSupport = (doc.getObject("YZ_Plane001"), [""])
sketch8.MapMode = "FlatFace"
sketch8.AttachmentOffset = App.Placement(Vector(0, 0, 31.08), App.Rotation())
sketch8.addGeometry([
    Part.LineSegment(Vector(-42.58, 19, 0), Vector(-64.83, 19, 0)),  # 0
    Part.LineSegment(Vector(-64.83, 19, 0), Vector(-64.83, 12.15, 0)),  # 1
    Part.LineSegment(Vector(-64.83, 12.15, 0), Vector(-62.98, 12.15, 0)),  # 2
    Part.LineSegment(Vector(-62.98, 12.15, 0), Vector(-62.98, 17.15, 0)),  # 3
    Part.LineSegment(Vector(-62.98, 17.15, 0), Vector(-42.58, 17.15, 0)),  # 4
    Part.LineSegment(Vector(-42.58, 17.15, 0), Vector(-42.58, 19, 0)),  # 5
], False)
sketch8.addConstraint([
    Sketcher.Constraint("Coincident", 0, 2, 1, 1),
    Sketcher.Constraint("Coincident", 1, 2, 2, 1),
    Sketcher.Constraint("Coincident", 2, 2, 3, 1),
    Sketcher.Constraint("Coincident", 3, 2, 4, 1),
    Sketcher.Constraint("Coincident", 4, 2, 5, 1),
    Sketcher.Constraint("Coincident", 5, 2, 0, 1),
    Sketcher.Constraint("Horizontal", 0),
    Sketcher.Constraint("Vertical", 1),
    Sketcher.Constraint("Horizontal", 2),
    Sketcher.Constraint("Vertical", 3),
    Sketcher.Constraint("Horizontal", 4),
    Sketcher.Constraint("Vertical", 5),
    Sketcher.Constraint("Equal", 2, 5),
    Sketcher.Constraint("DistanceY", 3, 1, 3, 2, 5.0),
    Sketcher.Constraint("DistanceX", 4, 1, 4, 2, 20.4),
    Sketcher.Constraint("DistanceY", -1, 1, 0, 2, 19.0),
    Sketcher.Constraint("DistanceX", 0, 2, 0, 1, 22.25),
    Sketcher.Constraint("DistanceX", 0, 2, -1, 1, 64.83),
])
pad4 = body2.newObject("PartDesign::Pad", "Pad003")
pad4.Profile = sketch8
pad4.Length = 10
pad4.Reversed = True
mirroring.Visibility = False

doc.recompute()
